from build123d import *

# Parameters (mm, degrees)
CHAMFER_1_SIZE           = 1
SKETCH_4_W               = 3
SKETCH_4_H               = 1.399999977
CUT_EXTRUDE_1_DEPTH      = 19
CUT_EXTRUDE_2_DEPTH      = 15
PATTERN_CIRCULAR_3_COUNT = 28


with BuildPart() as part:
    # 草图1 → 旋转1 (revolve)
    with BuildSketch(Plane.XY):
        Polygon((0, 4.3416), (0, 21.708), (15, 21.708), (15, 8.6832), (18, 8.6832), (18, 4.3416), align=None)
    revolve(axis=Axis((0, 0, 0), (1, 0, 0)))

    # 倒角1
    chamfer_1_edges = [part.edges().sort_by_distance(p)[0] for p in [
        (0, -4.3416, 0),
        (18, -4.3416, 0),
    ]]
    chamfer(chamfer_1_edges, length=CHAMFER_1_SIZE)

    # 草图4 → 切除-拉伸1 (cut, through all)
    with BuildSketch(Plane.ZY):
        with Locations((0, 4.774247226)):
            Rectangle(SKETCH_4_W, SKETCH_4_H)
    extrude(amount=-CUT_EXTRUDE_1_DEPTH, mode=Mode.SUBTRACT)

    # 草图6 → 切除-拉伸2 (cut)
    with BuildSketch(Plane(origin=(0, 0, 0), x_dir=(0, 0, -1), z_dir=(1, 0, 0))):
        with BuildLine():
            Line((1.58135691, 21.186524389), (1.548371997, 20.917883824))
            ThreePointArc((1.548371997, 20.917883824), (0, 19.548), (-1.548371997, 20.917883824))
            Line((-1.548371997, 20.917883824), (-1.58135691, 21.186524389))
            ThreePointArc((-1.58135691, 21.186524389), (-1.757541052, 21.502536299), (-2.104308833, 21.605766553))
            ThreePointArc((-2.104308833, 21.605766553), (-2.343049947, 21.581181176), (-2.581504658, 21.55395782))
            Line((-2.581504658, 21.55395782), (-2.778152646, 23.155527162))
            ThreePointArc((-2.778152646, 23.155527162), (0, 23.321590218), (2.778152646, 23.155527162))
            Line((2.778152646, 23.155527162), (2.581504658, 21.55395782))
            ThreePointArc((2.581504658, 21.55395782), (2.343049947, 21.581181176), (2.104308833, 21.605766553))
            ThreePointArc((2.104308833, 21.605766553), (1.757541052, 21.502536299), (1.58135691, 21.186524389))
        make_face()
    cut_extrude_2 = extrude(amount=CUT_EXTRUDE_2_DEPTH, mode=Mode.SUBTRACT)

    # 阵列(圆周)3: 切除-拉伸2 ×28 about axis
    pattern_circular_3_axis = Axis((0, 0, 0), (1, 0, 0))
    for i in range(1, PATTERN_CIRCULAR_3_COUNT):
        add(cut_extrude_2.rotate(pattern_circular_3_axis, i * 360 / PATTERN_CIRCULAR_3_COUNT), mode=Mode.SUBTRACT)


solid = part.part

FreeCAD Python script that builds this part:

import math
import FreeCAD as App
import Part
import Sketcher
Q = App.Units.Quantity


def edges_at(feature, points):
    """Names of the edges that pass closest to the given points."""
    edges = feature.Shape.Edges
    near = lambda p: min(range(len(edges)), key=lambda i: edges[i].distToShape(Part.Vertex(*p))[0])
    return sorted({f"Edge{near(p) + 1}" for p in points})


def add_polygon(sketch, points):
    """Adds a closed chain of lines whose ends are joined by coincident constraints."""
    first, n = sketch.GeometryCount, len(points)
    for a, b in zip(points, points[1:] + points[:1]):
        sketch.addGeometry(Part.LineSegment(App.Vector(*a, 0), App.Vector(*b, 0)), False)
    for i in range(n):
        sketch.addConstraint(Sketcher.Constraint("Coincident", first + i, 2, first + (i + 1) % n, 1))

doc = App.newDocument("Part")
body = doc.addObject("PartDesign::Body", "Body")

sketch1 = doc.addObject("Sketcher::SketchObject", "Sketch")
body.addObject(sketch1)
sketch1.AttachmentSupport = (doc.XY_Plane, [""])
sketch1.MapMode = "FlatFace"
add_polygon(sketch1, [(0, 21.708), (0, 4.3416), (18, 4.3416), (18, 8.6832), (15, 8.6832), (15, 21.708)])
sketch1.addConstraint(Sketcher.Constraint("Vertical", 0))
sketch1.addConstraint(Sketcher.Constraint("Horizontal", 1))
sketch1.addConstraint(Sketcher.Constraint("Vertical", 2))
sketch1.addConstraint(Sketcher.Constraint("Horizontal", 3))
sketch1.addConstraint(Sketcher.Constraint("Vertical", 4))
sketch1.addConstraint(Sketcher.Constraint("Horizontal", 5))
sketch1.addConstraint(Sketcher.Constraint("PointOnObject", 0, 2, -2))
sketch1.addConstraint(Sketcher.Constraint("DistanceX", 1, 1, 1, 2, Q("18 mm")))
sketch1.addConstraint(Sketcher.Constraint("DistanceX", 3, 2, 3, 1, Q("3 mm")))
sketch1.addConstraint(Sketcher.Constraint("DistanceY", 0, 2, 0, 1, Q("17.3664 mm")))
sketch1.addConstraint(Sketcher.Constraint("DistanceY", 2, 1, 2, 2, Q("4.3416 mm")))
sketch1.addConstraint(Sketcher.Constraint("DistanceY", -1, 1, 4, 2, Q("21.708 mm")))
revolution = doc.addObject("PartDesign::Revolution", "Revolution")
body.addObject(revolution)
revolution.Profile = sketch1
revolution.ReferenceAxis = (sketch1, ["H_Axis"])
revolution.Angle = 360
doc.recompute()

chamfer = doc.addObject("PartDesign::Chamfer", "Chamfer")
body.addObject(chamfer)
chamfer.Base = (revolution, edges_at(revolution, [(0, -4.342, 0), (18, -4.342, 0)]))
chamfer.Size = 1

sketch2 = doc.addObject("Sketcher::SketchObject", "Sketch001")
body.addObject(sketch2)
sketch2.AttachmentSupport = (doc.YZ_Plane, [""])
sketch2.MapMode = "FlatFace"
add_polygon(sketch2, [(5.474247, -1.5), (4.074247, -1.5), (4.074247, 1.5), (5.474247, 1.5)])
sketch2.addConstraint(Sketcher.Constraint("Horizontal", 0))
sketch2.addConstraint(Sketcher.Constraint("Vertical", 1))
sketch2.addConstraint(Sketcher.Constraint("Horizontal", 2))
sketch2.addConstraint(Sketcher.Constraint("Vertical", 3))
sketch2.addConstraint(Sketcher.Constraint("DistanceY", 1, 1, 1, 2, Q("3 mm")))
sketch2.addConstraint(Sketcher.Constraint("DistanceX", 0, 2, 0, 1, Q("1.4 mm")))
sketch2.addConstraint(Sketcher.Constraint("DistanceY", 0, 2, -1, 1, Q("1.5 mm")))
sketch2.addConstraint(Sketcher.Constraint("DistanceX", -1, 1, 0, 2, Q("4.074247 mm")))
pocket1 = doc.addObject("PartDesign::Pocket", "Pocket")
body.addObject(pocket1)
pocket1.Profile = sketch2
pocket1.Type = "ThroughAll"
pocket1.Reversed = True

sketch3 = doc.addObject("Sketcher::SketchObject", "Sketch002")
body.addObject(sketch3)
sketch3.AttachmentSupport = (doc.YZ_Plane, [""])
sketch3.MapMode = "FlatFace"
sketch3.addGeometry(Part.LineSegment(App.Vector(20.917884, -1.548372, 0), App.Vector(21.186524, -1.581357, 0)), False)
sketch3.addGeometry(Part.ArcOfCircle(Part.Circle(App.Vector(21.128027, -2.057779, 0), App.Vector(0, 0, 1), 0.48), math.radians(-5.562818), math.radians(83)), False)
sketch3.addGeometry(Part.ArcOfCircle(Part.Circle(App.Vector(0, 0, 0), App.Vector(0, 0, 1), 21.708), math.radians(-6.829748), math.radians(-5.562818)), False)
sketch3.addGeometry(Part.LineSegment(App.Vector(21.553958, -2.581505, 0), App.Vector(23.155527, -2.778153, 0)), False)
sketch3.addGeometry(Part.ArcOfCircle(Part.Circle(App.Vector(0, 0, 0), App.Vector(0, 0, 1), 23.32159), math.radians(-6.841528), math.radians(6.841528)), False)
sketch3.addGeometry(Part.LineSegment(App.Vector(23.155527, 2.778153, 0), App.Vector(21.553958, 2.581505, 0)), False)
sketch3.addGeometry(Part.ArcOfCircle(Part.Circle(App.Vector(0, 0, 0), App.Vector(0, 0, 1), 21.708), math.radians(5.562818), math.radians(6.829748)), False)
sketch3.addGeometry(Part.ArcOfCircle(Part.Circle(App.Vector(21.128027, 2.057779, 0), App.Vector(0, 0, 1), 0.48), math.radians(-83), math.radians(5.562818)), False)
sketch3.addGeometry(Part.LineSegment(App.Vector(21.186524, 1.581357, 0), App.Vector(20.917884, 1.548372, 0)), False)
sketch3.addGeometry(Part.ArcOfCircle(Part.Circle(App.Vector(21.108, 0, 0), App.Vector(0, 0, 1), 1.56), math.radians(97), math.radians(263)), False)
sketch3.addConstraint(Sketcher.Constraint("Tangent", 0, 2, 1, 2))
sketch3.addConstraint(Sketcher.Constraint("Tangent", 1, 1, 2, 2))
sketch3.addConstraint(Sketcher.Constraint("Coincident", 2, 1, 3, 1))
sketch3.addConstraint(Sketcher.Constraint("Coincident", 3, 2, 4, 1))
sketch3.addConstraint(Sketcher.Constraint("Coincident", 4, 2, 5, 1))
sketch3.addConstraint(Sketcher.Constraint("Coincident", 5, 2, 6, 2))
sketch3.addConstraint(Sketcher.Constraint("Tangent", 6, 1, 7, 2))
sketch3.addConstraint(Sketcher.Constraint("Tangent", 7, 1, 8, 1))
sketch3.addConstraint(Sketcher.Constraint("Tangent", 8, 2, 9, 1))
sketch3.addConstraint(Sketcher.Constraint("Tangent", 9, 2, 0, 1))
sketch3.addConstraint(Sketcher.Constraint("Coincident", 2, 3, -1, 1))
sketch3.addConstraint(Sketcher.Constraint("Coincident", 4, 3, -1, 1))
sketch3.addConstraint(Sketcher.Constraint("Coincident", 6, 3, -1, 1))
sketch3.addConstraint(Sketcher.Constraint("Equal", 2, 6))
sketch3.addConstraint(Sketcher.Constraint("Equal", 1, 7))
sketch3.addConstraint(Sketcher.Constraint("Symmetric", 0, 2, 7, 1, -1))
sketch3.addConstraint(Sketcher.Constraint("Parallel", 0, 3))
sketch3.addConstraint(Sketcher.Constraint("Parallel", 5, 8))
sketch3.addConstraint(Sketcher.Constraint("Vertical", 3, 2, 4, 2))
sketch3.addConstraint(Sketcher.Constraint("Angle", 0, Q("-7 deg")))
sketch3.addConstraint(Sketcher.Constraint("Radius", 1, Q("0.48 mm")))
sketch3.addConstraint(Sketcher.Constraint("Radius", 9, Q("1.56 mm")))
sketch3.addConstraint(Sketcher.Constraint("Radius", 2, Q("21.708 mm")))
sketch3.addConstraint(Sketcher.Constraint("Radius", 4, Q("23.32159 mm")))
sketch3.addConstraint(Sketcher.Constraint("DistanceX", -1, 1, 9, 3, Q("21.108 mm")))
sketch3.addConstraint(Sketcher.Constraint("DistanceX", 1, 3, 3, 2, Q("2.0275 mm")))
pocket2 = doc.addObject("PartDesign::Pocket", "Pocket001")
body.addObject(pocket2)
pocket2.Profile = sketch3
pocket2.Length = 15
pocket2.Reversed = True
doc.recompute()

polarpattern = doc.addObject("PartDesign::PolarPattern", "PolarPattern")
body.addObject(polarpattern)
polarpattern.Originals = [pocket2]
polarpattern.Axis = (doc.X_Axis, [""])
polarpattern.Angle = 360
polarpattern.Occurrences = 28
body.Tip = polarpattern

doc.recompute()
